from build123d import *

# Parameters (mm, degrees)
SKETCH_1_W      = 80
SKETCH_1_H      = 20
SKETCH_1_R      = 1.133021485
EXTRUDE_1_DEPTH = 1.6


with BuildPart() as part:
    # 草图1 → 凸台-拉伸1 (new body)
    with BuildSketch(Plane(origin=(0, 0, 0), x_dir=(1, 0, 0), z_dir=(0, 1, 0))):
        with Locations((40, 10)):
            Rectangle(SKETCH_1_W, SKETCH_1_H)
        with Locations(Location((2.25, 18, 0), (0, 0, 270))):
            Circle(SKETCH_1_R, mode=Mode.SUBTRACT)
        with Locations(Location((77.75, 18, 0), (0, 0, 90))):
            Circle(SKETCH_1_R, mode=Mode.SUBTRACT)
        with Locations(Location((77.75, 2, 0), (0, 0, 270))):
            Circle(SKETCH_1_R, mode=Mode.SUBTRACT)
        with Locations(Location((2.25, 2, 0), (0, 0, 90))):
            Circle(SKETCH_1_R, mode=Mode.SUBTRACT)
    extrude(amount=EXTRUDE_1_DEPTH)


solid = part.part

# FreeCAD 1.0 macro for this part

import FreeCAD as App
import Part
import Sketcher
Q = App.Units.Quantity


def add_polygon(sketch, points):
    """Adds a closed chain of lines whose ends are joined by coincident constraints."""
    first, n = sketch.GeometryCount, len(points)
    for a, b in zip(points, points[1:] + points[:1]):
        sketch.addGeometry(Part.LineSegment(App.Vector(*a, 0), App.Vector(*b, 0)), False)
    for i in range(n):
        sketch.addConstraint(Sketcher.Constraint("Coincident", first + i, 2, first + (i + 1) % n, 1))

doc = App.newDocument("Part")
body = doc.addObject("PartDesign::Body", "Body")

# Sketch on XZ plane
sketch1 = body.newObject("Sketcher::SketchObject", "Sketch")
sketch1.AttachmentSupport = (doc.getObject("XZ_Plane"), [""])
sketch1.MapMode = "FlatFace"
add_polygon(sketch1, [(0, -20), (0, 0), (80, 0), (80, -20)])  # lines 0-3
sketch1.addGeometry(Part.Circle(App.Vector(2.2, -2, 0), App.Vector(0, 0, 1), 1.1), False)  # 4
sketch1.addGeometry(Part.Circle(App.Vector(77.8, -2, 0), App.Vector(0, 0, 1), 1.1), False)  # 5
sketch1.addGeometry(Part.Circle(App.Vector(2.2, -18, 0), App.Vector(0, 0, 1), 1.1), False)  # 6
sketch1.addGeometry(Part.Circle(App.Vector(77.8, -18, 0), App.Vector(0, 0, 1), 1.1), False)  # 7
sketch1.addConstraint([
    Sketcher.Constraint("Vertical", 0),
    Sketcher.Constraint("Horizontal", 1),
    Sketcher.Constraint("Vertical", 2),
    Sketcher.Constraint("Horizontal", 3),
    Sketcher.Constraint("Coincident", 0, 2, -1, 1),
    Sketcher.Constraint("Equal", 4, 5),
    Sketcher.Constraint("Equal", 5, 6),
    Sketcher.Constraint("Equal", 6, 7),
    Sketcher.Constraint("Horizontal", 4, 3, 5, 3),
    Sketcher.Constraint("Horizontal", 6, 3, 7, 3),
    Sketcher.Constraint("Vertical", 4, 3, 6, 3),
    Sketcher.Constraint("Vertical", 5, 3, 7, 3),
    Sketcher.Constraint("DistanceX", 1, 1, 1, 2, Q("80 mm")),
    Sketcher.Constraint("DistanceY", 0, 1, 0, 2, Q("20 mm")),
    Sketcher.Constraint("DistanceY", 4, 3, -1, 1, Q("2 mm")),
    Sketcher.Constraint("DistanceY", 6, 3, -1, 1, Q("18 mm")),
    Sketcher.Constraint("DistanceX", 4, 3, 5, 3, Q("75.5 mm")),
    Sketcher.Constraint("DistanceX", -1, 1, 4, 3, Q("2.25 mm")),
    Sketcher.Constraint("Diameter", 4, Q("2.266043 mm")),
])
pad1 = body.newObject("PartDesign::Pad", "Pad")
pad1.Profile = sketch1
pad1.Length = 1.6
pad1.Reversed = True

doc.recompute()
